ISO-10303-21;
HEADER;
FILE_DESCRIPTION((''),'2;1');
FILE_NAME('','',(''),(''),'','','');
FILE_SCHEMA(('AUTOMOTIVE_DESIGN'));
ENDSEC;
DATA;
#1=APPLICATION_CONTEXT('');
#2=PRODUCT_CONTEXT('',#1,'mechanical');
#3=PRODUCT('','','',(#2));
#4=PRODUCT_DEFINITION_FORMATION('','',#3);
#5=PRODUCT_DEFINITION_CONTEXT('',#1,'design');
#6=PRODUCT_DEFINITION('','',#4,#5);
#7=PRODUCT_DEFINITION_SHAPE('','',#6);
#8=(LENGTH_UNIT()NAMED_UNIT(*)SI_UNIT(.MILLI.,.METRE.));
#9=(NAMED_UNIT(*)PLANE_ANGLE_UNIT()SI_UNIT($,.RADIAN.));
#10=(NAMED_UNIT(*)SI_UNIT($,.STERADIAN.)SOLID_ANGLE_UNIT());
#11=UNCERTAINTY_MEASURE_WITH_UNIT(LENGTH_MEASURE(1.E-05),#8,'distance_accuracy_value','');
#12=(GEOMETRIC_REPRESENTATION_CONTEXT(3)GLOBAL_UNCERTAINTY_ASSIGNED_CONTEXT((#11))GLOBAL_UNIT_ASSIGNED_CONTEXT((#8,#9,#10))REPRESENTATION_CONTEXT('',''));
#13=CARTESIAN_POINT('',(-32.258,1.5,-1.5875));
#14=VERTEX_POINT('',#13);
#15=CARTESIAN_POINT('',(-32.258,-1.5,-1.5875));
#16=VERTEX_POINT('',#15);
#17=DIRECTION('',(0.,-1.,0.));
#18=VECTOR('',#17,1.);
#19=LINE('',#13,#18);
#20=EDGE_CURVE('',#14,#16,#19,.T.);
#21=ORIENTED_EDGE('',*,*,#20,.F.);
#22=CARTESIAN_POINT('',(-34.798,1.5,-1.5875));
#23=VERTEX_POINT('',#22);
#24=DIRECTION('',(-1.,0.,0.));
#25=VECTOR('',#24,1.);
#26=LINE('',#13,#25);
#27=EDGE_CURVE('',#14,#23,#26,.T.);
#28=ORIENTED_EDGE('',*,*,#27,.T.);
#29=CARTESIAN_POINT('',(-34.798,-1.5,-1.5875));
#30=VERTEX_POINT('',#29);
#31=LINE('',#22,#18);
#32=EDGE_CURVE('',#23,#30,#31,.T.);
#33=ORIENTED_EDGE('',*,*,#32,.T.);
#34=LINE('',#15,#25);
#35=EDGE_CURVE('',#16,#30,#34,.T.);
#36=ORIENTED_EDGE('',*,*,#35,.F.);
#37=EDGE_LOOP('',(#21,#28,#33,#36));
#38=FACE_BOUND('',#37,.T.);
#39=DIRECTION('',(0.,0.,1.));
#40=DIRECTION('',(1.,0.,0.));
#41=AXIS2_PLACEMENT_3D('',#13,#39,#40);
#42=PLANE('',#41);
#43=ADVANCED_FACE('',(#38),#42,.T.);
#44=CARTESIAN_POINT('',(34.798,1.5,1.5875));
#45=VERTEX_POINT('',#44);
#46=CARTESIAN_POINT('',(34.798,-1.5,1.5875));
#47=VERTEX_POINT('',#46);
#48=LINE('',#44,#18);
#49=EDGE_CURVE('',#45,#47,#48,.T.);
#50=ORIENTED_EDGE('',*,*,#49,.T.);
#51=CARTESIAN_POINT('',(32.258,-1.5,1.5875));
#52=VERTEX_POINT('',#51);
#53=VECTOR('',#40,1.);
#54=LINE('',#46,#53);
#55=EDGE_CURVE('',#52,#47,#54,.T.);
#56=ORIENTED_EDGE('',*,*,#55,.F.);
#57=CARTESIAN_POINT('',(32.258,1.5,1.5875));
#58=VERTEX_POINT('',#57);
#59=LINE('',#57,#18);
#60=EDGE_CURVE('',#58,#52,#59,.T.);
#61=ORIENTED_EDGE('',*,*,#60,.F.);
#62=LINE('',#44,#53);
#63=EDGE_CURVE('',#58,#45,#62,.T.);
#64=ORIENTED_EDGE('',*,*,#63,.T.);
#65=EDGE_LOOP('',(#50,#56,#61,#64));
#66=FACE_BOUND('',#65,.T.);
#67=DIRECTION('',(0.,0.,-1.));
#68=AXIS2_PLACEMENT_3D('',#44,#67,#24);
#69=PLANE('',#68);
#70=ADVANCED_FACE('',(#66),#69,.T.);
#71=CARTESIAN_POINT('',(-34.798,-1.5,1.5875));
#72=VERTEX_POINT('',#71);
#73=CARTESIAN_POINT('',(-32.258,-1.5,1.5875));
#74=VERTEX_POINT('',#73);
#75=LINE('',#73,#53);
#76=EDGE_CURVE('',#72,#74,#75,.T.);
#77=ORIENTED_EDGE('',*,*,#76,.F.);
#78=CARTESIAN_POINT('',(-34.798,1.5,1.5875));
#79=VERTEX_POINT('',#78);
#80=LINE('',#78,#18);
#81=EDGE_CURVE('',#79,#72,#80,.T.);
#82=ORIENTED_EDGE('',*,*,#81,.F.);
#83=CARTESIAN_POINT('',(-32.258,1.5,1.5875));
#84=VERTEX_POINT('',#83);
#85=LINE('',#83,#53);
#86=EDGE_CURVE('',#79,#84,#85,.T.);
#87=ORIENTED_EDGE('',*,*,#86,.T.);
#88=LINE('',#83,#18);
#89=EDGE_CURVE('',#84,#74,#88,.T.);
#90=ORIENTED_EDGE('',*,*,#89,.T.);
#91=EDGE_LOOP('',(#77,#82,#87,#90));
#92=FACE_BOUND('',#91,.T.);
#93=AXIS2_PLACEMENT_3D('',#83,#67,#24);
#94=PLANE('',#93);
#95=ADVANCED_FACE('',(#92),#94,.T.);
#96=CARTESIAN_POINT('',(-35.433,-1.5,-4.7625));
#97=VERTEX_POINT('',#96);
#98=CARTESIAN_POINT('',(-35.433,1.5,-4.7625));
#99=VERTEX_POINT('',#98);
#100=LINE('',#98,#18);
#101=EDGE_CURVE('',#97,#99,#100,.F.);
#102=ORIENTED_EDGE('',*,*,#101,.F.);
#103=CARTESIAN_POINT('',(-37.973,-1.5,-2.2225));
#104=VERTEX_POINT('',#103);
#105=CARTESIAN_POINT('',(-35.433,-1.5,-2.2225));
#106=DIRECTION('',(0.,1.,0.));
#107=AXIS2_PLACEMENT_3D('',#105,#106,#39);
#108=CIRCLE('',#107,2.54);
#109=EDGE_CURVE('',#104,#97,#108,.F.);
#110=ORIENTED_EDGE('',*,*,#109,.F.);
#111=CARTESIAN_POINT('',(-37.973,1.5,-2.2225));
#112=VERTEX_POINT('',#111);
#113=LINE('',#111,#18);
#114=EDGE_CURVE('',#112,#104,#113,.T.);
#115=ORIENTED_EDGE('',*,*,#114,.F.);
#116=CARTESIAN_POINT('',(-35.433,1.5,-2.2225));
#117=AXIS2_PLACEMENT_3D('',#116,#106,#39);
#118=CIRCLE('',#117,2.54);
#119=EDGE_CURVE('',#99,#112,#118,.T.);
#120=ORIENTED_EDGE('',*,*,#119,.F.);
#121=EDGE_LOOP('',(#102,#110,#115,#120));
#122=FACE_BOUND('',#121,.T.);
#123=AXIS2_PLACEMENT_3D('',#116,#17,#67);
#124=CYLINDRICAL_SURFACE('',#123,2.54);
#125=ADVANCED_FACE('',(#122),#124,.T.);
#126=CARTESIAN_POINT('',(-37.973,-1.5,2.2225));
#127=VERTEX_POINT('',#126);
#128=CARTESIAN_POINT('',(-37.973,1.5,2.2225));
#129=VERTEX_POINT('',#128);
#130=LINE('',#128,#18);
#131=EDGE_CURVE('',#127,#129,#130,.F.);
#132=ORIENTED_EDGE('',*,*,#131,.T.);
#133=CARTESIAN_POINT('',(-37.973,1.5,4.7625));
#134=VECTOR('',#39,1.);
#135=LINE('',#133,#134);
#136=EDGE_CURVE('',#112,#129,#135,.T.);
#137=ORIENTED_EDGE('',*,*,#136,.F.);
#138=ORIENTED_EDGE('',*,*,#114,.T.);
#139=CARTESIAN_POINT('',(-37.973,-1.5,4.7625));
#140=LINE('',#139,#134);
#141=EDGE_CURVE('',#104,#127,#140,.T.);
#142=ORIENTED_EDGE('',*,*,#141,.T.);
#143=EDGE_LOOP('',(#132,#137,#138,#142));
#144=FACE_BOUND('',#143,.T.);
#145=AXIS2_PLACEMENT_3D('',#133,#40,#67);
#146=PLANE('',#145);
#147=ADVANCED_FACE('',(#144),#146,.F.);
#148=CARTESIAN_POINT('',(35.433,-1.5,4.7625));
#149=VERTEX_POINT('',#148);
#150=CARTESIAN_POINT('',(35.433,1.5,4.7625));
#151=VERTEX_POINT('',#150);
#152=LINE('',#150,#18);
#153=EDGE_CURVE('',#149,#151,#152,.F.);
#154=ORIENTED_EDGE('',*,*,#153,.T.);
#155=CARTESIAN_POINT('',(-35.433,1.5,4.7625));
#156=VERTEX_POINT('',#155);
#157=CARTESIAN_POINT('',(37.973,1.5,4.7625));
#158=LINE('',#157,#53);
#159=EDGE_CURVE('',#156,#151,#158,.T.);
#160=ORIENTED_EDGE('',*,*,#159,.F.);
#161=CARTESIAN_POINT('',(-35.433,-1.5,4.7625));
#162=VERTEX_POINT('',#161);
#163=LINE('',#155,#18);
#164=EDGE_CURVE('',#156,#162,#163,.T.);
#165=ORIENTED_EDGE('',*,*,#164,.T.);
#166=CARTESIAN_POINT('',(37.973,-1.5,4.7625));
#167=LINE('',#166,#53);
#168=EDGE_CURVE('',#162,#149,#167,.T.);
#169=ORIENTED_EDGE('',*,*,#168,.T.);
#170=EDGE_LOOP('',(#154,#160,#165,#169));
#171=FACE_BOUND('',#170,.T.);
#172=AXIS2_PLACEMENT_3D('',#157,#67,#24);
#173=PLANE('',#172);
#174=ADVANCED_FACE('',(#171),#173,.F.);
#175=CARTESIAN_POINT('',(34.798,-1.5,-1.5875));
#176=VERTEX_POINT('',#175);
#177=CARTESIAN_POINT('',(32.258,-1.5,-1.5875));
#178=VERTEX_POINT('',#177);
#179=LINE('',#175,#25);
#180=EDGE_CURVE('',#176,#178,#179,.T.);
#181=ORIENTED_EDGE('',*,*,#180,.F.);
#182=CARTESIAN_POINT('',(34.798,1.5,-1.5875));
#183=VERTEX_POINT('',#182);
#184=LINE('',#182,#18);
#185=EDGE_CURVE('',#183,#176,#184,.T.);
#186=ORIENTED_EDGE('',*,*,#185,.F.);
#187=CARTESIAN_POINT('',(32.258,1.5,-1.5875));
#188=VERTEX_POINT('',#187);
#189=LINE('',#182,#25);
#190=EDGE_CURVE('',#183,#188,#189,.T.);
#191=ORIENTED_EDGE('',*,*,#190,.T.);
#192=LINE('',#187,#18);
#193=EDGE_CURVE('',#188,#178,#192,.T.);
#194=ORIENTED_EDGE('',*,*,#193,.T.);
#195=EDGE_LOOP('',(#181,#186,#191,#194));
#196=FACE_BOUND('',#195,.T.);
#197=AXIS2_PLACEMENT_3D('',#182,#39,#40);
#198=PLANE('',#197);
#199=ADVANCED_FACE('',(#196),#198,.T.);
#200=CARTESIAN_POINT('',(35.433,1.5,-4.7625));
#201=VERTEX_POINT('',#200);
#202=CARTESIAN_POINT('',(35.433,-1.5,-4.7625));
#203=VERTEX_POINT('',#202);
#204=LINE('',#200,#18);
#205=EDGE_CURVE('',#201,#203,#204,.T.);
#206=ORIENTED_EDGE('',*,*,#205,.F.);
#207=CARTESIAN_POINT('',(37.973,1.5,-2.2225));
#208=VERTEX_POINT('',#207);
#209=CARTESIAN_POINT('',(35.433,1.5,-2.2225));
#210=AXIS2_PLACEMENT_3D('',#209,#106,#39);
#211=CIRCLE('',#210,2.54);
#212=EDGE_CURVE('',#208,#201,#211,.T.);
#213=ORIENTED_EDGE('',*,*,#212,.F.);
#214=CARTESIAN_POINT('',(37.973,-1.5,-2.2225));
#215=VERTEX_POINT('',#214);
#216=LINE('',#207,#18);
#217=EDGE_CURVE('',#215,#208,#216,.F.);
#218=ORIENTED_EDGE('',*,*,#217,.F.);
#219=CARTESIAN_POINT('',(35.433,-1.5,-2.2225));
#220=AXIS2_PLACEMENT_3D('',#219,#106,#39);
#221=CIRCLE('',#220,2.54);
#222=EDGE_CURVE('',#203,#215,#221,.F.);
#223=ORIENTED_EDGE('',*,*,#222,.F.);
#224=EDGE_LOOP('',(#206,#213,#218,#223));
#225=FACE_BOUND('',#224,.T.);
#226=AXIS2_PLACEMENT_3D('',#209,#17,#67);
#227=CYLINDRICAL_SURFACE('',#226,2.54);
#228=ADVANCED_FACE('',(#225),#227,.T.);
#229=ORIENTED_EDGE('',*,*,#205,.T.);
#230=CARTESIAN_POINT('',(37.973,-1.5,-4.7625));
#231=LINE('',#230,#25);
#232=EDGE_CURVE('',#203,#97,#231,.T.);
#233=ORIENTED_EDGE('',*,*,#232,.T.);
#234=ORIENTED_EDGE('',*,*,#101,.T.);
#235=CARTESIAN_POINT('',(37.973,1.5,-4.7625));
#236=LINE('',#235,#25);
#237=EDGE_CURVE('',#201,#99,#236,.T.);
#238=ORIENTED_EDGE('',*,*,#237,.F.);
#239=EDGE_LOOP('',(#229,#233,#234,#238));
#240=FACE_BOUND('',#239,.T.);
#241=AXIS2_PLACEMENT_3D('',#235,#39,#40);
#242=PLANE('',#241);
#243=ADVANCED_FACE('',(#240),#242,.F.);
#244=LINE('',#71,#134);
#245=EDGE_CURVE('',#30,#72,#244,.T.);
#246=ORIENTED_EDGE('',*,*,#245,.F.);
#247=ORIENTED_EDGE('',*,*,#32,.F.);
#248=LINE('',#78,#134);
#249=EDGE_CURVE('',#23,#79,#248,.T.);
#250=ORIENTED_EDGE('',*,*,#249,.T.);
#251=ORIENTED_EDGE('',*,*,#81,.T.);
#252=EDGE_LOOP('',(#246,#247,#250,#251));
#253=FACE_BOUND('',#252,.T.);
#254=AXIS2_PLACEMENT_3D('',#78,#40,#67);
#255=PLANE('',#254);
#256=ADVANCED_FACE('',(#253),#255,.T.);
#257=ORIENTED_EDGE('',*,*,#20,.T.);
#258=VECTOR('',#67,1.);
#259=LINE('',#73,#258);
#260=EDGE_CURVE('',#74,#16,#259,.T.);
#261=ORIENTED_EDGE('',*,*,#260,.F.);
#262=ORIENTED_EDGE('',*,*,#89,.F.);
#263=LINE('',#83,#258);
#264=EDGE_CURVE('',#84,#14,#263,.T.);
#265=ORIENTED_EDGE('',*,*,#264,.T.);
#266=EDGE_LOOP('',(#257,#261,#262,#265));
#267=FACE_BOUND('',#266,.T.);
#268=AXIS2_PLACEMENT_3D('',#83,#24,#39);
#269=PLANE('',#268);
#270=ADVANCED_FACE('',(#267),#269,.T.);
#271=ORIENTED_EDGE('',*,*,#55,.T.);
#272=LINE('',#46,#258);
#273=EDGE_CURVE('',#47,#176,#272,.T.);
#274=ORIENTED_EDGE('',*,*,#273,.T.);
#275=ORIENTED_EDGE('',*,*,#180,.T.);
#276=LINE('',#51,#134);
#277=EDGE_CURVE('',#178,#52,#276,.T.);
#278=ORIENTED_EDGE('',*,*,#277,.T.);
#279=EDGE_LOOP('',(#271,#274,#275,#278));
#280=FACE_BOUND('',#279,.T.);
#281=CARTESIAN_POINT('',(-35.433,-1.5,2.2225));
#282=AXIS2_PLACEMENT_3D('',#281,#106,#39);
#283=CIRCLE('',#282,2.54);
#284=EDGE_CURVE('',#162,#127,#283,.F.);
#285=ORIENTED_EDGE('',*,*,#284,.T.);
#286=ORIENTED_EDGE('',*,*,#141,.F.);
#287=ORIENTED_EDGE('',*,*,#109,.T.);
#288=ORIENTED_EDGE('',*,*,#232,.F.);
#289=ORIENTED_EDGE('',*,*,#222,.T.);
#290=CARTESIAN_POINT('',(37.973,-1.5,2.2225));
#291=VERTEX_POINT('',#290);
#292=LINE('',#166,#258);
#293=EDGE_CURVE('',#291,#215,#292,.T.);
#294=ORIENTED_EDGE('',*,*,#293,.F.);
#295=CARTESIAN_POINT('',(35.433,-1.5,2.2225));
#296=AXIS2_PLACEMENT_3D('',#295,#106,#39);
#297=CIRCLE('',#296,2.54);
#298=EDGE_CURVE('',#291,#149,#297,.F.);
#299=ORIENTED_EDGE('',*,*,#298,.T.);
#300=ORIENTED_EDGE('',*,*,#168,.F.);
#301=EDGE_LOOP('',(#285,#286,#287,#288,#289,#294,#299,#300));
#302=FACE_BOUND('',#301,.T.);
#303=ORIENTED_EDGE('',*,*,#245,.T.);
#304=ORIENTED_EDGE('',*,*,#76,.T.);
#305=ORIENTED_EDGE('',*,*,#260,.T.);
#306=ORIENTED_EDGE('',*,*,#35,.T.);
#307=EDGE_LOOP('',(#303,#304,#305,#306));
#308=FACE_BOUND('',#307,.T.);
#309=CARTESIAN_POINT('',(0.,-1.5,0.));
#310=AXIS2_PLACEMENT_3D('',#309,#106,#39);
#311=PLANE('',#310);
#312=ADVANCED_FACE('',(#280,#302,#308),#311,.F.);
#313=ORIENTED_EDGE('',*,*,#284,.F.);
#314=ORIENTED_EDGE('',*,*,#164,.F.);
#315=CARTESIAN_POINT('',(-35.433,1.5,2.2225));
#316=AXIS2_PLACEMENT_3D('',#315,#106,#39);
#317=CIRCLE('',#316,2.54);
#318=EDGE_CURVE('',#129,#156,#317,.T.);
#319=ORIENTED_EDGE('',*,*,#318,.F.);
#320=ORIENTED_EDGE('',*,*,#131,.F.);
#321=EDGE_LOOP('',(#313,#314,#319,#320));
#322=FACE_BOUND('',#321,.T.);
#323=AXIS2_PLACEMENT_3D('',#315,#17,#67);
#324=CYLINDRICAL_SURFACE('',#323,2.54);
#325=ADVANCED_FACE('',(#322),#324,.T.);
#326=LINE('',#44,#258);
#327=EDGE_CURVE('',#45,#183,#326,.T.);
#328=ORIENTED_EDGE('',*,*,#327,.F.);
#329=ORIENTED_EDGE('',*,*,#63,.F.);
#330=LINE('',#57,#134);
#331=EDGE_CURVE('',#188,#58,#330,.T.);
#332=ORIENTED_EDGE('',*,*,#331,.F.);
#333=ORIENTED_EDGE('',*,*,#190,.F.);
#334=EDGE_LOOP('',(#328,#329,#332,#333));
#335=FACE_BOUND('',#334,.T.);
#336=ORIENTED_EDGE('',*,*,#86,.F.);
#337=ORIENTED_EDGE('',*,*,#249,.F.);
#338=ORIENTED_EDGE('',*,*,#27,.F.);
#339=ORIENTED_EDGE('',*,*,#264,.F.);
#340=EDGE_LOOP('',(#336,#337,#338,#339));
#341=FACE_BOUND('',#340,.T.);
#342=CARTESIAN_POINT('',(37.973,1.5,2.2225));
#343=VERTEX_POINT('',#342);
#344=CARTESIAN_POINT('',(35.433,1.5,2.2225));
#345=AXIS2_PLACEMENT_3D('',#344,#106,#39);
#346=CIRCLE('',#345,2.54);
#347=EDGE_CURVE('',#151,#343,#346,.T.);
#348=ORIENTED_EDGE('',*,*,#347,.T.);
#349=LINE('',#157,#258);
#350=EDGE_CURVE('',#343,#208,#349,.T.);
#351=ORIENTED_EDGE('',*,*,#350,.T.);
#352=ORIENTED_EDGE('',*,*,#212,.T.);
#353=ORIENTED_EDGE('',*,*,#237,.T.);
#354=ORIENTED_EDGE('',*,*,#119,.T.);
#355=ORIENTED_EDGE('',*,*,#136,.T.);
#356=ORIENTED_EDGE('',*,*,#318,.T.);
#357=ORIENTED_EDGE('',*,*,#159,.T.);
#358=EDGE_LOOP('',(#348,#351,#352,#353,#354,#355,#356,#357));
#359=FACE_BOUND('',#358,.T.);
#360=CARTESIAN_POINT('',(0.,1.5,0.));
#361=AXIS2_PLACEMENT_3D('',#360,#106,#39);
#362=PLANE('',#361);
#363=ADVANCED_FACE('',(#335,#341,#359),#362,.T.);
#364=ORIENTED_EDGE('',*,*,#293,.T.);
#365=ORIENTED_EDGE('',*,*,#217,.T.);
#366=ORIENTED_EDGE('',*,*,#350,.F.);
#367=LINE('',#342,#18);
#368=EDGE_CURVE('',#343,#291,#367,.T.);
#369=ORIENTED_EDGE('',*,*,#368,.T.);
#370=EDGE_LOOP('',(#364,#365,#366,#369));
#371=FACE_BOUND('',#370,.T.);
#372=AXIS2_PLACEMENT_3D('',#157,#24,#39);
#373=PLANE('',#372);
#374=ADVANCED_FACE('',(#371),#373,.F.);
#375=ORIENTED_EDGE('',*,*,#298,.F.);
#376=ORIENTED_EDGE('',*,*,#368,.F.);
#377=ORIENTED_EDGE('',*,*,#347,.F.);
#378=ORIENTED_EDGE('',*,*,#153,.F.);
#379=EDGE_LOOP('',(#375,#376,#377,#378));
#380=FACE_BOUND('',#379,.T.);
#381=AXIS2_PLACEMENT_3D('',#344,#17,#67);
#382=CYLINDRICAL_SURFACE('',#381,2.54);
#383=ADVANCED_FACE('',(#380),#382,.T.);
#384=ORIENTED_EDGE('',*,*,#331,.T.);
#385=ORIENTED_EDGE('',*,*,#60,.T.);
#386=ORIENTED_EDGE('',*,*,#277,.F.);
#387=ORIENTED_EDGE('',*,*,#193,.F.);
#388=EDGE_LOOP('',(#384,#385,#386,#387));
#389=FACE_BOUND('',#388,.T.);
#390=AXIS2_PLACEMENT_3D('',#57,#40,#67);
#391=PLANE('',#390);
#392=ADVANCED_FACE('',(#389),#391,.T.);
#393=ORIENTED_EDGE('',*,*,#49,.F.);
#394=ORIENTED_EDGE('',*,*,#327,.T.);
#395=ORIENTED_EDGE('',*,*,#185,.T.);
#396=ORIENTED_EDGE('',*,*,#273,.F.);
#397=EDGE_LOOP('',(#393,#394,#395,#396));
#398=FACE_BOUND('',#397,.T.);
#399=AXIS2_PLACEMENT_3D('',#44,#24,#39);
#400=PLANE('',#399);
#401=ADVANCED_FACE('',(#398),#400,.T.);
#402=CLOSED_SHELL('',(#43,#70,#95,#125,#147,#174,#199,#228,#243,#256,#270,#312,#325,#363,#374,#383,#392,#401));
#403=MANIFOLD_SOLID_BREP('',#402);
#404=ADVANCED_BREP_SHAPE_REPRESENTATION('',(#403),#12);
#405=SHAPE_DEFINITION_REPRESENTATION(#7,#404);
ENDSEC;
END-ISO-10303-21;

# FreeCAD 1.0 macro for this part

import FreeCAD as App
import Part
import Sketcher
Q = App.Units.Quantity


def edges_at(feature, points):
    """Names of the edges that pass closest to the given points."""
    edges = feature.Shape.Edges
    near = lambda p: min(range(len(edges)), key=lambda i: edges[i].distToShape(Part.Vertex(*p))[0])
    return sorted({f"Edge{near(p) + 1}" for p in points})

doc = App.newDocument("Part")
params = doc.addObject("Spreadsheet::Sheet", "Params")
for row, (alias, value) in enumerate([
    ("sketch1_width", "0.1 in"),
    ("sketch1_width2", "2.99 in"),
    ("sketch1_height", "0.375 in"),
    ("sketch1_height2", "0.125 in"),
    ("pad1_length", "3 mm"),
    ("fillet_radius", "0.1 in"),
], start=1):
    params.set(f"A{row}", alias)
    params.set(f"B{row}", "=" + value)
    params.setAlias(f"B{row}", alias)

body = doc.addObject("PartDesign::Body", "Body")

# Sketch on XZ plane
sketch1 = doc.addObject("Sketcher::SketchObject", "Sketch")
body.addObject(sketch1)
sketch1.AttachmentSupport = (doc.XZ_Plane, [""])
sketch1.MapMode = "FlatFace"
sketch1.addGeometry([
    Part.LineSegment(App.Vector(-37.973, -4.7625, 0), App.Vector(-37.973, 4.7625, 0)),  # 0
    Part.LineSegment(App.Vector(-37.973, 4.7625, 0), App.Vector(37.973, 4.7625, 0)),  # 1
    Part.LineSegment(App.Vector(37.973, 4.7625, 0), App.Vector(37.973, -4.7625, 0)),  # 2
    Part.LineSegment(App.Vector(37.973, -4.7625, 0), App.Vector(-37.973, -4.7625, 0)),  # 3
    Part.LineSegment(App.Vector(-32.258, 1.5875, 0), App.Vector(-34.798, 1.5875, 0)),  # 4
    Part.LineSegment(App.Vector(-34.798, 1.5875, 0), App.Vector(-34.798, -1.5875, 0)),  # 5
    Part.LineSegment(App.Vector(-34.798, -1.5875, 0), App.Vector(-32.258, -1.5875, 0)),  # 6
    Part.LineSegment(App.Vector(-32.258, -1.5875, 0), App.Vector(-32.258, 1.5875, 0)),  # 7
    Part.LineSegment(App.Vector(34.798, 1.5875, 0), App.Vector(32.258, 1.5875, 0)),  # 8
    Part.LineSegment(App.Vector(32.258, 1.5875, 0), App.Vector(32.258, -1.5875, 0)),  # 9
    Part.LineSegment(App.Vector(32.258, -1.5875, 0), App.Vector(34.798, -1.5875, 0)),  # 10
    Part.LineSegment(App.Vector(34.798, -1.5875, 0), App.Vector(34.798, 1.5875, 0)),  # 11
], False)
sketch1.addConstraint([
    Sketcher.Constraint("Coincident", 0, 2, 1, 1),
    Sketcher.Constraint("Coincident", 1, 2, 2, 1),
    Sketcher.Constraint("Coincident", 2, 2, 3, 1),
    Sketcher.Constraint("Coincident", 3, 2, 0, 1),
    Sketcher.Constraint("Coincident", 4, 2, 5, 1),
    Sketcher.Constraint("Coincident", 5, 2, 6, 1),
    Sketcher.Constraint("Coincident", 6, 2, 7, 1),
    Sketcher.Constraint("Coincident", 7, 2, 4, 1),
    Sketcher.Constraint("Coincident", 8, 2, 9, 1),
    Sketcher.Constraint("Coincident", 9, 2, 10, 1),
    Sketcher.Constraint("Coincident", 10, 2, 11, 1),
    Sketcher.Constraint("Coincident", 11, 2, 8, 1),
    Sketcher.Constraint("Vertical", 0),
    Sketcher.Constraint("Horizontal", 1),
    Sketcher.Constraint("Vertical", 2),
    Sketcher.Constraint("Horizontal", 3),
    Sketcher.Constraint("Horizontal", 4),
    Sketcher.Constraint("Vertical", 5),
    Sketcher.Constraint("Horizontal", 6),
    Sketcher.Constraint("Vertical", 7),
    Sketcher.Constraint("Horizontal", 8),
    Sketcher.Constraint("Vertical", 9),
    Sketcher.Constraint("Horizontal", 10),
    Sketcher.Constraint("Vertical", 11),
    Sketcher.Constraint("Symmetric", 0, 2, 2, 2, -1, 1),
    Sketcher.Constraint("Symmetric", 6, 2, 8, 2, -1, 1),
    Sketcher.Constraint("Symmetric", 4, 2, 10, 2, -1, 1),
    Sketcher.Constraint("Horizontal", 7, 2, 8, 2),
    Sketcher.Constraint("DistanceX", 4, 2, 4, 1, Q("0.1 in")),
    Sketcher.Constraint("DistanceX", 1, 1, 1, 2, Q("2.99 in")),
    Sketcher.Constraint("DistanceY", 0, 1, 0, 2, Q("0.375 in")),
    Sketcher.Constraint("DistanceY", 5, 2, 5, 1, Q("0.125 in")),
    Sketcher.Constraint("DistanceX", 4, 2, -1, 1, Q("1.37 in")),
])
sketch1.setExpression("Constraints[28]", "Params.sketch1_width")
sketch1.setExpression("Constraints[29]", "Params.sketch1_width2")
sketch1.setExpression("Constraints[30]", "Params.sketch1_height")
sketch1.setExpression("Constraints[31]", "Params.sketch1_height2")
pad1 = doc.addObject("PartDesign::Pad", "Pad")
body.addObject(pad1)
pad1.Profile = sketch1
pad1.setExpression("Length", "Params.pad1_length")
pad1.Midplane = True
doc.recompute()

fillet = doc.addObject("PartDesign::Fillet", "Fillet")
body.addObject(fillet)
fillet.Base = (pad1, edges_at(pad1, [
    (-37.973, 0, -4.763),
    (37.973, 0, -4.763),
    (37.973, 0, 4.763),
    (-37.973, 0, 4.763),
]))
fillet.setExpression("Radius", "Params.fillet_radius")

doc.recompute()
